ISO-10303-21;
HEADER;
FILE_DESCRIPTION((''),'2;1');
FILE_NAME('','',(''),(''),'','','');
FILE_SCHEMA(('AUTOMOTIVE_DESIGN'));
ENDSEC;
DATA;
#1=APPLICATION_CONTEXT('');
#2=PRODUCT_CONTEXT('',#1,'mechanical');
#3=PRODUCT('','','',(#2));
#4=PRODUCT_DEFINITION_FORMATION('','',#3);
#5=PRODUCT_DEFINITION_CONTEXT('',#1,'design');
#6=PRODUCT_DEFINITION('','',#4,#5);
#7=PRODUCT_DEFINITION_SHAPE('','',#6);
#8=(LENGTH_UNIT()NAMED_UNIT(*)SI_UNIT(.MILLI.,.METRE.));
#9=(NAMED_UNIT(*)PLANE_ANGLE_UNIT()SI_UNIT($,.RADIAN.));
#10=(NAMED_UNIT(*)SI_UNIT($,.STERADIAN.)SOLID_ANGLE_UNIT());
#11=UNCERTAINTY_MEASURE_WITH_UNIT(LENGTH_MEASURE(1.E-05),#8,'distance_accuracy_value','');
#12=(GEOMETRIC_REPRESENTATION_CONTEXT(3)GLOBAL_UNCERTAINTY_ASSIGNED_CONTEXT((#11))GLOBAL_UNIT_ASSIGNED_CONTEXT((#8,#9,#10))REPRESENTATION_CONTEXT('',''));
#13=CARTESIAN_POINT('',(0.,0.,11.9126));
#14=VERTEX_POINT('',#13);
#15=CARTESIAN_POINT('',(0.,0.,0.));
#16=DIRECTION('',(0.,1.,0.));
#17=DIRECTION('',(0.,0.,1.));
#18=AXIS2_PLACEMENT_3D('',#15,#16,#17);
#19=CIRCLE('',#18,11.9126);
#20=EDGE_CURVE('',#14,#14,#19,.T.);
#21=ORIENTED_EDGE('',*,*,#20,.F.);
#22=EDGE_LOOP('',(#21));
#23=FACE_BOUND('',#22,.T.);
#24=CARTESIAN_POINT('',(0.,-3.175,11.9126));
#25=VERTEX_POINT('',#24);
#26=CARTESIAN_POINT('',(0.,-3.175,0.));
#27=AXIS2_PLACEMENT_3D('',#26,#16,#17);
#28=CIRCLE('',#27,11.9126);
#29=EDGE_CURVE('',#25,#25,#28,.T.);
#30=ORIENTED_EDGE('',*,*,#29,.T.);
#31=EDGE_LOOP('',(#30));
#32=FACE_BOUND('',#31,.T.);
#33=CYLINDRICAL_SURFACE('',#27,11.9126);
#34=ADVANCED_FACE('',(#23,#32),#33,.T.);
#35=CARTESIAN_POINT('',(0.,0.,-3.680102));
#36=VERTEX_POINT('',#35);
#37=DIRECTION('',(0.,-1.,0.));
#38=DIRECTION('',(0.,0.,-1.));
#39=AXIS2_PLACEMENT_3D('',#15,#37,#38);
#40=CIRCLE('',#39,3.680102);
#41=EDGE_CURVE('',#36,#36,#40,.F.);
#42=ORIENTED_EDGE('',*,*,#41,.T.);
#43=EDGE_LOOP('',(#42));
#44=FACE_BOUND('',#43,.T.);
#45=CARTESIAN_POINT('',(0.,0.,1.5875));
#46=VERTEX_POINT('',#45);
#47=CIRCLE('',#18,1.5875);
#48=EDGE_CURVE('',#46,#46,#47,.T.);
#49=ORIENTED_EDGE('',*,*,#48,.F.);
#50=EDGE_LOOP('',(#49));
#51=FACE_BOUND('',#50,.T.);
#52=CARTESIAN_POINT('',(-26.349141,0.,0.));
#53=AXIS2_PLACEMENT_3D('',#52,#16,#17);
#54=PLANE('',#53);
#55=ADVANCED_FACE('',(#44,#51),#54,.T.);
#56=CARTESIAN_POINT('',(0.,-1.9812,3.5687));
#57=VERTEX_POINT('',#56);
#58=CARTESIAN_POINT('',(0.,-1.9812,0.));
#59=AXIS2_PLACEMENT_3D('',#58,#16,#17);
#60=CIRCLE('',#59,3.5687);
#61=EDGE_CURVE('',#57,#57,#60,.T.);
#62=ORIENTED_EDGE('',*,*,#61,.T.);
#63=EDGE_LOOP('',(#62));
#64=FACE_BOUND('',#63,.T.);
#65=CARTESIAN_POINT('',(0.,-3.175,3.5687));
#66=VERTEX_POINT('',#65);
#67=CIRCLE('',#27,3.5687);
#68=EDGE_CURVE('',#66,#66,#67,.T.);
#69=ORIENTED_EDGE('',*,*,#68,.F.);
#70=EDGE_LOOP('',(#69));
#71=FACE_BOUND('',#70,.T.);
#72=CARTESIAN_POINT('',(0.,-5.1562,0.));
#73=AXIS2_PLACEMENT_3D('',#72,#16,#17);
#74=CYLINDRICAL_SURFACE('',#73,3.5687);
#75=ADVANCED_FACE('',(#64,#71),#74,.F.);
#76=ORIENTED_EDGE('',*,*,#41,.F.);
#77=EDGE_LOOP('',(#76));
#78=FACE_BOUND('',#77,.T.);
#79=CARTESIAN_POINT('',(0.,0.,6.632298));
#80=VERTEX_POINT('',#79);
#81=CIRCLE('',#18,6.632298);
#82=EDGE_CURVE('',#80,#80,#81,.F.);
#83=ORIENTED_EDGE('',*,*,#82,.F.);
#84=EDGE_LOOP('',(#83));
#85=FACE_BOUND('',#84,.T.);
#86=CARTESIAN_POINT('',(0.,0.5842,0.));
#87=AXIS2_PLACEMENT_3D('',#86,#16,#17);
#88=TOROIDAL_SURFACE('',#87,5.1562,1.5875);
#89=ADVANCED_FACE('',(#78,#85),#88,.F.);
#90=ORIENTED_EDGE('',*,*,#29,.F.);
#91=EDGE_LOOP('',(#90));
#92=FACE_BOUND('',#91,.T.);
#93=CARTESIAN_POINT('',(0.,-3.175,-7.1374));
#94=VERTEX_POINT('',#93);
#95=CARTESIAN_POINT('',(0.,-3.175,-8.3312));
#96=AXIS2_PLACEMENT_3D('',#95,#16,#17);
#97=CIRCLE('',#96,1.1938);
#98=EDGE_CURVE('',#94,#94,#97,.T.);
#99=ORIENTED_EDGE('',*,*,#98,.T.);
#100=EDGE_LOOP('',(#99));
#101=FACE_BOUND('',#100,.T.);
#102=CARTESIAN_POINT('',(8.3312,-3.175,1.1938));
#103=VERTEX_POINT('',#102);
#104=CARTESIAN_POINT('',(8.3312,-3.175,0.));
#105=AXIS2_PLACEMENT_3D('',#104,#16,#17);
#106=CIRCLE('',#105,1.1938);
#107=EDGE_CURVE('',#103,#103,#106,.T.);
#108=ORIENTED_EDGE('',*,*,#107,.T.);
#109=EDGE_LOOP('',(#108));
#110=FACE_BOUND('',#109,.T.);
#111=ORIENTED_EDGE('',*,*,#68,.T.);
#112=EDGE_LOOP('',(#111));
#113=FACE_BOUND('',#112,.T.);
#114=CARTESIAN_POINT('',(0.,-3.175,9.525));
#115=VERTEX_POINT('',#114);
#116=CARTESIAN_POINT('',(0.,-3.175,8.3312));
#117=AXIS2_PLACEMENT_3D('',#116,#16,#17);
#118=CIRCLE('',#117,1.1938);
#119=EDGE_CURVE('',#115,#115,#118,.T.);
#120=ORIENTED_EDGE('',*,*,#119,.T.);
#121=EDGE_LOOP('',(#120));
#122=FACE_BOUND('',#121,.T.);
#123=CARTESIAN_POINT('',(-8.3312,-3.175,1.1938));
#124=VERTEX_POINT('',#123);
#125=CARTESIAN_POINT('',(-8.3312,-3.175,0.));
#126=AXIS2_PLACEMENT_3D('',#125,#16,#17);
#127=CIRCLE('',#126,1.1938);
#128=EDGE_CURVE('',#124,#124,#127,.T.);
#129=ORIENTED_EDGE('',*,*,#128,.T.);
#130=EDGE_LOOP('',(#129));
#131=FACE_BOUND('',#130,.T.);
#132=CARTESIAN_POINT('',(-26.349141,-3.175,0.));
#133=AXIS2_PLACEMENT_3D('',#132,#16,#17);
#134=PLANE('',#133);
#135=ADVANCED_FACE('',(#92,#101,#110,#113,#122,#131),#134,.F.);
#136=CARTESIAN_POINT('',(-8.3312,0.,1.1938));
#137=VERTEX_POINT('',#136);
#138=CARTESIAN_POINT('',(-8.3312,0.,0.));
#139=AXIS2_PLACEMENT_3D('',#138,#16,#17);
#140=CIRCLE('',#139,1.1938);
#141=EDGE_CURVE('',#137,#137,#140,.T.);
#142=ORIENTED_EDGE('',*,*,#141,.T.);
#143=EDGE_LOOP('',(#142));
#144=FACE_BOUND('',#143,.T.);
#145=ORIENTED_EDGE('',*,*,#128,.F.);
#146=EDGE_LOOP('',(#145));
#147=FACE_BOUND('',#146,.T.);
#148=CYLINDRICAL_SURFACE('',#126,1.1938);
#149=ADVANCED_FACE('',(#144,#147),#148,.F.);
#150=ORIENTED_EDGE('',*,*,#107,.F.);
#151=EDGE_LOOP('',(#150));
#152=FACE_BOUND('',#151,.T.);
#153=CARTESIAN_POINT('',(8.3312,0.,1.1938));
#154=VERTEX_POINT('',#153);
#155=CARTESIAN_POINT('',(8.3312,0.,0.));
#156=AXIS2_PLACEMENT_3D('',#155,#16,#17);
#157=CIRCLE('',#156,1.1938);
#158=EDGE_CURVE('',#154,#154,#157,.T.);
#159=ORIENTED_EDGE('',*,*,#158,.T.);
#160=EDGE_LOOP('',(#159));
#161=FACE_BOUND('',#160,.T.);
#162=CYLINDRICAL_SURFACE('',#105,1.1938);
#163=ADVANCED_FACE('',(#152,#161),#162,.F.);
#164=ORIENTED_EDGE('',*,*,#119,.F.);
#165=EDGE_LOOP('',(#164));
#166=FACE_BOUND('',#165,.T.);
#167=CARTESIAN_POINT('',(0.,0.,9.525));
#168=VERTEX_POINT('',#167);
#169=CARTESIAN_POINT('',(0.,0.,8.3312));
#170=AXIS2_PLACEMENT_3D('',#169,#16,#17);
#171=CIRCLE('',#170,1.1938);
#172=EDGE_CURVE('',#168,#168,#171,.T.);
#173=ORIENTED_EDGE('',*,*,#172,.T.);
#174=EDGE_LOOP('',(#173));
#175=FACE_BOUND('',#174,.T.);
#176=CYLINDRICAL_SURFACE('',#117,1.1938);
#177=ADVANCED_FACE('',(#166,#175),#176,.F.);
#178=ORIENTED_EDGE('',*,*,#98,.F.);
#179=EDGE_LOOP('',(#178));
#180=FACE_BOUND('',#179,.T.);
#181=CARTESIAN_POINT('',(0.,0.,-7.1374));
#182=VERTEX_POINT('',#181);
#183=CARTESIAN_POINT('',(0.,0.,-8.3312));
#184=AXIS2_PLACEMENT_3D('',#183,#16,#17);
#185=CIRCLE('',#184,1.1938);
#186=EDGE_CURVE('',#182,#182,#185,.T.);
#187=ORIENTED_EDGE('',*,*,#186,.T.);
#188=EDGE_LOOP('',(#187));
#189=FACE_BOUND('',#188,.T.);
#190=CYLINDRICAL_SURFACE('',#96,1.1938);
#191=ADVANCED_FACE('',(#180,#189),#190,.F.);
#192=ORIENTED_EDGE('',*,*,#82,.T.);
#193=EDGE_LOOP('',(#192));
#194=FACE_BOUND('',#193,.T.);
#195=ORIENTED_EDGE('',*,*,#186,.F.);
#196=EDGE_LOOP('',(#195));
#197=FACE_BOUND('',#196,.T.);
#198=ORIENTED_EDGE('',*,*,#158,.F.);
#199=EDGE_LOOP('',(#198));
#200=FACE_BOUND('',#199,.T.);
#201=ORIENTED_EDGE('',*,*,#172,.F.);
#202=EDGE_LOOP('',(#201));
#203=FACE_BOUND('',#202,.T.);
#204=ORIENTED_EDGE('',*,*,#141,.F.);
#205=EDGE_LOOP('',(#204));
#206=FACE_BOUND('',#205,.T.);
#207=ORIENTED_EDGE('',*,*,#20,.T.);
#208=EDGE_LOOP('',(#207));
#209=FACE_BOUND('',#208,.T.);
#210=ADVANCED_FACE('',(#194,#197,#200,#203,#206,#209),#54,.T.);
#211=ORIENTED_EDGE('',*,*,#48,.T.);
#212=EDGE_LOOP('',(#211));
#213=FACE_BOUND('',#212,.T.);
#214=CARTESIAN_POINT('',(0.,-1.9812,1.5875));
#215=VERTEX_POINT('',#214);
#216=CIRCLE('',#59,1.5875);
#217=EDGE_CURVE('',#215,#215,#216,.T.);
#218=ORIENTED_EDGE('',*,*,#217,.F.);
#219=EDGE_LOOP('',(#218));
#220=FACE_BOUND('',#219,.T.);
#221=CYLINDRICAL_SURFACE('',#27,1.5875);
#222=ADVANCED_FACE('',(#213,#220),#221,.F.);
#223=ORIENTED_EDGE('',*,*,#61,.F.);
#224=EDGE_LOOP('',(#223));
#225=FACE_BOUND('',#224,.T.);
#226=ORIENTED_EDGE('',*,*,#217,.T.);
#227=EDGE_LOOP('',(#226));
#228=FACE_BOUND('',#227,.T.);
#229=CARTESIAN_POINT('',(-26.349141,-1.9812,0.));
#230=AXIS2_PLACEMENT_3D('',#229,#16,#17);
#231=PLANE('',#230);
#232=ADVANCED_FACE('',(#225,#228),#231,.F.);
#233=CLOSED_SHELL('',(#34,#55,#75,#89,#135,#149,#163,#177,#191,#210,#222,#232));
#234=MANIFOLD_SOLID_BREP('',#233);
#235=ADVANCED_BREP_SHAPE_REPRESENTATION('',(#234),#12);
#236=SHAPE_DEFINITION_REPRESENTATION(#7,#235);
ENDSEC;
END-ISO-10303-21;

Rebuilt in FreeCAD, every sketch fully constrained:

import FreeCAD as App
import Part
import Sketcher
Q = App.Units.Quantity

doc = App.newDocument("Part")
body = doc.addObject("PartDesign::Body", "Body")

sketch1 = body.newObject("Sketcher::SketchObject", "Sketch")
sketch1.AttachmentSupport = (doc.getObject("XZ_Plane"), [""])
sketch1.MapMode = "FlatFace"
sketch1.addGeometry(Part.Circle(App.Vector(0, 0, 0), App.Vector(0, 0, 1), 11.9), False)
sketch1.addGeometry(Part.Circle(App.Vector(0, -8.3, 0), App.Vector(0, 0, 1), 1.2), False)
sketch1.addGeometry(Part.Circle(App.Vector(-8.3, 0, 0), App.Vector(0, 0, 1), 1.2), False)
sketch1.addGeometry(Part.Circle(App.Vector(8.3, 0, 0), App.Vector(0, 0, 1), 1.2), False)
sketch1.addGeometry(Part.Circle(App.Vector(0, 8.3, 0), App.Vector(0, 0, 1), 1.2), False)
sketch1.addConstraint(Sketcher.Constraint("Coincident", 0, 3, -1, 1))
sketch1.addConstraint(Sketcher.Constraint("Equal", 1, 2))
sketch1.addConstraint(Sketcher.Constraint("Equal", 2, 3))
sketch1.addConstraint(Sketcher.Constraint("Equal", 3, 4))
sketch1.addConstraint(Sketcher.Constraint("Symmetric", 2, 3, 3, 3, -1, 1))
sketch1.addConstraint(Sketcher.Constraint("Symmetric", 1, 3, 4, 3, -1, 1))
sketch1.addConstraint(Sketcher.Constraint("PointOnObject", 1, 3, -2))
sketch1.addConstraint(Sketcher.Constraint("PointOnObject", 2, 3, -1))
sketch1.addConstraint(Sketcher.Constraint("Diameter", 0, Q("0.938 in")))
sketch1.addConstraint(Sketcher.Constraint("Diameter", 1, Q("0.094 in")))
sketch1.addConstraint(Sketcher.Constraint("DistanceY", 1, 3, -1, 1, Q("0.328 in")))
sketch1.addConstraint(Sketcher.Constraint("DistanceX", 2, 3, -1, 1, Q("0.328 in")))
pad1 = body.newObject("PartDesign::Pad", "Pad")
pad1.Profile = sketch1
pad1.Length = Q("0.125 in")

sketch2 = body.newObject("Sketcher::SketchObject", "Sketch001")
sketch2.AttachmentSupport = (doc.getObject("XY_Plane"), [""])
sketch2.MapMode = "FlatFace"
sketch2.addGeometry(Part.Circle(App.Vector(5.2, 0.6, 0), App.Vector(0, 0, 1), 1.6), False)
sketch2.addConstraint(Sketcher.Constraint("Diameter", 0, Q("0.125 in")))
sketch2.addConstraint(Sketcher.Constraint("DistanceX", -1, 1, 0, 3, Q("0.203 in")))
sketch2.addConstraint(Sketcher.Constraint("DistanceY", -1, 1, 0, 3, Q("0.023 in")))
groove = body.newObject("PartDesign::Groove", "Groove")
groove.Profile = sketch2
groove.ReferenceAxis = (sketch2, ["V_Axis"])
groove.Angle = 360

sketch3 = body.newObject("Sketcher::SketchObject", "Sketch002")
sketch3.AttachmentSupport = (doc.getObject("XZ_Plane"), [""])
sketch3.MapMode = "FlatFace"
sketch3.AttachmentOffset = App.Placement(App.Vector(0, 0, 0.078 * 25.4), App.Rotation())
sketch3.addGeometry(Part.Circle(App.Vector(0, 0, 0), App.Vector(0, 0, 1), 3.6), False)
sketch3.addConstraint(Sketcher.Constraint("Coincident", 0, 3, -1, 1))
sketch3.addConstraint(Sketcher.Constraint("Diameter", 0, Q("0.281 in")))
pocket1 = body.newObject("PartDesign::Pocket", "Pocket")
pocket1.Profile = sketch3
pocket1.Length = Q("0.125 in")
pocket1.Reversed = True

sketch4 = body.newObject("Sketcher::SketchObject", "Sketch003")
sketch4.AttachmentSupport = (doc.getObject("XZ_Plane"), [""])
sketch4.MapMode = "FlatFace"
sketch4.addGeometry(Part.Circle(App.Vector(0, 0, 0), App.Vector(0, 0, 1), 1.6), False)
sketch4.addConstraint(Sketcher.Constraint("Coincident", 0, 3, -1, 1))
sketch4.addConstraint(Sketcher.Constraint("Diameter", 0, Q("0.125 in")))
pocket2 = body.newObject("PartDesign::Pocket", "Pocket001")
pocket2.Profile = sketch4
pocket2.Length = Q("0.125 in")
pocket2.Reversed = True

doc.recompute()
